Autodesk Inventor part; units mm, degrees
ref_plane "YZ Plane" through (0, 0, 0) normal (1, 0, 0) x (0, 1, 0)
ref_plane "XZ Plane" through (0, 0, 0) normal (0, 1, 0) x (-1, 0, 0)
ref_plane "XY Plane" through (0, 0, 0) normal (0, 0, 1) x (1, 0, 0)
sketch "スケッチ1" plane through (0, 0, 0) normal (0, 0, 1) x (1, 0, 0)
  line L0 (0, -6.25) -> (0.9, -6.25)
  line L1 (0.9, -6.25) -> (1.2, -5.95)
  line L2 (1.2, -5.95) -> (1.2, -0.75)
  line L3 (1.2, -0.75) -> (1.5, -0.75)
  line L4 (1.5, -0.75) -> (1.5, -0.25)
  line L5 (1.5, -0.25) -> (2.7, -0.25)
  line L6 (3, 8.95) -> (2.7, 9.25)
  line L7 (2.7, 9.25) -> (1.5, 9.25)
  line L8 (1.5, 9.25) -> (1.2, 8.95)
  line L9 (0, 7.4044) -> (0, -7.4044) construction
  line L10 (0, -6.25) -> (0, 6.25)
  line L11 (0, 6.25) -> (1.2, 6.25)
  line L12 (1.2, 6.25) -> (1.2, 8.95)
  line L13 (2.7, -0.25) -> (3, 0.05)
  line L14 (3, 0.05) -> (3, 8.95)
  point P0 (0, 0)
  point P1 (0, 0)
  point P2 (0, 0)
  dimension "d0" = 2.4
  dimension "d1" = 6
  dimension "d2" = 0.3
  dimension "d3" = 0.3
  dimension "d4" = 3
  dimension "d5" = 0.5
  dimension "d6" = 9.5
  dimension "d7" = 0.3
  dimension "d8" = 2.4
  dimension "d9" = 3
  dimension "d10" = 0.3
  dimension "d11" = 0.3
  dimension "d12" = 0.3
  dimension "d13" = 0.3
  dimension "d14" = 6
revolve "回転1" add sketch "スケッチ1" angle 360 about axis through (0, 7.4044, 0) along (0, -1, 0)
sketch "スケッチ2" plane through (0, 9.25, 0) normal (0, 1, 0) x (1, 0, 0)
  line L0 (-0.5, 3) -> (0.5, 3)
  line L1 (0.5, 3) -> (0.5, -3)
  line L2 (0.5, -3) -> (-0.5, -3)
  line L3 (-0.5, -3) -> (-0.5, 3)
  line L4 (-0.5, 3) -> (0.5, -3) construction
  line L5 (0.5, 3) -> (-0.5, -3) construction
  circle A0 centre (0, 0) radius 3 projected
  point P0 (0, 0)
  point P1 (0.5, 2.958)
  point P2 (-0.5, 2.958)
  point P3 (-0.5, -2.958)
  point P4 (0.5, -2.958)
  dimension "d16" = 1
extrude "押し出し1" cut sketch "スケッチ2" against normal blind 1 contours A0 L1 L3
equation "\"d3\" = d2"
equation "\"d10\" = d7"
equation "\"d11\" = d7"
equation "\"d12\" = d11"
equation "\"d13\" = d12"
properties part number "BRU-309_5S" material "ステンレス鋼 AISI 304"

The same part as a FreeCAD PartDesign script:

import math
import FreeCAD as App
import Part
import Sketcher
Q = App.Units.Quantity


def add_polygon(sketch, points):
    """Adds a closed chain of lines whose ends are joined by coincident constraints."""
    first, n = sketch.GeometryCount, len(points)
    for a, b in zip(points, points[1:] + points[:1]):
        sketch.addGeometry(Part.LineSegment(App.Vector(*a, 0), App.Vector(*b, 0)), False)
    for i in range(n):
        sketch.addConstraint(Sketcher.Constraint("Coincident", first + i, 2, first + (i + 1) % n, 1))

doc = App.newDocument("Part")
body = doc.addObject("PartDesign::Body", "Body")

sketch1 = body.newObject("Sketcher::SketchObject", "Sketch")
sketch1.AttachmentSupport = (doc.getObject("XY_Plane"), [""])
sketch1.MapMode = "FlatFace"
add_polygon(sketch1, [(0, 6.25), (0, -6.25), (0.9, -6.25), (1.2, -5.95), (1.2, -0.75), (1.5, -0.75), (1.5, -0.25), (2.7, -0.25), (3, 0.05), (3, 8.95), (2.7, 9.25), (1.5, 9.25), (1.2, 8.95), (1.2, 6.25)])
sketch1.addConstraint(Sketcher.Constraint("Vertical", 0))
sketch1.addConstraint(Sketcher.Constraint("Horizontal", 1))
sketch1.addConstraint(Sketcher.Constraint("Vertical", 3))
sketch1.addConstraint(Sketcher.Constraint("Horizontal", 4))
sketch1.addConstraint(Sketcher.Constraint("Vertical", 5))
sketch1.addConstraint(Sketcher.Constraint("Horizontal", 6))
sketch1.addConstraint(Sketcher.Constraint("Vertical", 8))
sketch1.addConstraint(Sketcher.Constraint("Horizontal", 10))
sketch1.addConstraint(Sketcher.Constraint("Vertical", 12))
sketch1.addConstraint(Sketcher.Constraint("Horizontal", 13))
sketch1.addConstraint(Sketcher.Constraint("Symmetric", 0, 2, 13, 2, -1, 1))
sketch1.addConstraint(Sketcher.Constraint("Parallel", 2, 7))
sketch1.addConstraint(Sketcher.Constraint("Perpendicular", 7, 9))
sketch1.addConstraint(Sketcher.Constraint("Perpendicular", 9, 11))
sketch1.addConstraint(Sketcher.Constraint("Horizontal", 8, 2, 11, 2))
sketch1.addConstraint(Sketcher.Constraint("Vertical", 6, 2, 9, 2))
sketch1.addConstraint(Sketcher.Constraint("Vertical", 5, 2, 10, 2))
sketch1.addConstraint(Sketcher.Constraint("Vertical", 3, 2, 11, 2))
sketch1.addConstraint(Sketcher.Constraint("Equal", 10, 13))
sketch1.addConstraint(Sketcher.Constraint("Equal", 2, 7))
sketch1.addConstraint(Sketcher.Constraint("Equal", 7, 9))
sketch1.addConstraint(Sketcher.Constraint("DistanceX", 4, 1, 4, 2, Q("0.3 mm")))
sketch1.addConstraint(Sketcher.Constraint("DistanceY", 5, 1, 5, 2, Q("0.5 mm")))
sketch1.addConstraint(Sketcher.Constraint("DistanceX", -1, 1, 7, 2, Q("3 mm")))
sketch1.addConstraint(Sketcher.Constraint("DistanceY", 1, 2, 5, 2, Q("6 mm")))
sketch1.addConstraint(Sketcher.Constraint("DistanceY", 12, 2, 10, 2, Q("3 mm")))
sketch1.addConstraint(Sketcher.Constraint("DistanceY", 6, 2, 9, 2, Q("9.5 mm")))
revolution = body.newObject("PartDesign::Revolution", "Revolution")
revolution.Profile = sketch1
revolution.ReferenceAxis = (sketch1, ["V_Axis"])
revolution.Angle = 360

sketch2 = body.newObject("Sketcher::SketchObject", "Sketch001")
sketch2.AttachmentSupport = (doc.getObject("XZ_Plane"), [""])
sketch2.MapMode = "FlatFace"
sketch2.AttachmentOffset = App.Placement(App.Vector(0, 0, -9.25), App.Rotation())
sketch2.addGeometry(Part.ArcOfCircle(Part.Circle(App.Vector(0, 0, 0), App.Vector(0, 0, 1), 3), math.radians(-99.594068), math.radians(-80.405932)), False)
sketch2.addGeometry(Part.LineSegment(App.Vector(-0.5, -2.95804, 0), App.Vector(-0.5, 2.95804, 0)), False)
sketch2.addGeometry(Part.ArcOfCircle(Part.Circle(App.Vector(0, 0, 0), App.Vector(0, 0, 1), 3), math.radians(80.405932), math.radians(99.594068)), False)
sketch2.addGeometry(Part.LineSegment(App.Vector(0.5, 2.95804, 0), App.Vector(0.5, -2.95804, 0)), False)
sketch2.addConstraint(Sketcher.Constraint("Coincident", 0, 1, 1, 1))
sketch2.addConstraint(Sketcher.Constraint("Coincident", 1, 2, 2, 2))
sketch2.addConstraint(Sketcher.Constraint("Coincident", 2, 1, 3, 1))
sketch2.addConstraint(Sketcher.Constraint("Coincident", 3, 2, 0, 2))
sketch2.addConstraint(Sketcher.Constraint("Vertical", 1))
sketch2.addConstraint(Sketcher.Constraint("Vertical", 3))
sketch2.addConstraint(Sketcher.Constraint("Coincident", 0, 3, -1, 1))
sketch2.addConstraint(Sketcher.Constraint("Coincident", 2, 3, -1, 1))
sketch2.addConstraint(Sketcher.Constraint("Equal", 0, 2))
sketch2.addConstraint(Sketcher.Constraint("Horizontal", 1, 2, 2, 1))
sketch2.addConstraint(Sketcher.Constraint("Radius", 0, Q("3 mm")))
sketch2.addConstraint(Sketcher.Constraint("DistanceX", 1, 2, 2, 1, Q("1 mm")))
pocket1 = body.newObject("PartDesign::Pocket", "Pocket")
pocket1.Profile = sketch2
pocket1.Length = 1
pocket1.Reversed = True

doc.recompute()
